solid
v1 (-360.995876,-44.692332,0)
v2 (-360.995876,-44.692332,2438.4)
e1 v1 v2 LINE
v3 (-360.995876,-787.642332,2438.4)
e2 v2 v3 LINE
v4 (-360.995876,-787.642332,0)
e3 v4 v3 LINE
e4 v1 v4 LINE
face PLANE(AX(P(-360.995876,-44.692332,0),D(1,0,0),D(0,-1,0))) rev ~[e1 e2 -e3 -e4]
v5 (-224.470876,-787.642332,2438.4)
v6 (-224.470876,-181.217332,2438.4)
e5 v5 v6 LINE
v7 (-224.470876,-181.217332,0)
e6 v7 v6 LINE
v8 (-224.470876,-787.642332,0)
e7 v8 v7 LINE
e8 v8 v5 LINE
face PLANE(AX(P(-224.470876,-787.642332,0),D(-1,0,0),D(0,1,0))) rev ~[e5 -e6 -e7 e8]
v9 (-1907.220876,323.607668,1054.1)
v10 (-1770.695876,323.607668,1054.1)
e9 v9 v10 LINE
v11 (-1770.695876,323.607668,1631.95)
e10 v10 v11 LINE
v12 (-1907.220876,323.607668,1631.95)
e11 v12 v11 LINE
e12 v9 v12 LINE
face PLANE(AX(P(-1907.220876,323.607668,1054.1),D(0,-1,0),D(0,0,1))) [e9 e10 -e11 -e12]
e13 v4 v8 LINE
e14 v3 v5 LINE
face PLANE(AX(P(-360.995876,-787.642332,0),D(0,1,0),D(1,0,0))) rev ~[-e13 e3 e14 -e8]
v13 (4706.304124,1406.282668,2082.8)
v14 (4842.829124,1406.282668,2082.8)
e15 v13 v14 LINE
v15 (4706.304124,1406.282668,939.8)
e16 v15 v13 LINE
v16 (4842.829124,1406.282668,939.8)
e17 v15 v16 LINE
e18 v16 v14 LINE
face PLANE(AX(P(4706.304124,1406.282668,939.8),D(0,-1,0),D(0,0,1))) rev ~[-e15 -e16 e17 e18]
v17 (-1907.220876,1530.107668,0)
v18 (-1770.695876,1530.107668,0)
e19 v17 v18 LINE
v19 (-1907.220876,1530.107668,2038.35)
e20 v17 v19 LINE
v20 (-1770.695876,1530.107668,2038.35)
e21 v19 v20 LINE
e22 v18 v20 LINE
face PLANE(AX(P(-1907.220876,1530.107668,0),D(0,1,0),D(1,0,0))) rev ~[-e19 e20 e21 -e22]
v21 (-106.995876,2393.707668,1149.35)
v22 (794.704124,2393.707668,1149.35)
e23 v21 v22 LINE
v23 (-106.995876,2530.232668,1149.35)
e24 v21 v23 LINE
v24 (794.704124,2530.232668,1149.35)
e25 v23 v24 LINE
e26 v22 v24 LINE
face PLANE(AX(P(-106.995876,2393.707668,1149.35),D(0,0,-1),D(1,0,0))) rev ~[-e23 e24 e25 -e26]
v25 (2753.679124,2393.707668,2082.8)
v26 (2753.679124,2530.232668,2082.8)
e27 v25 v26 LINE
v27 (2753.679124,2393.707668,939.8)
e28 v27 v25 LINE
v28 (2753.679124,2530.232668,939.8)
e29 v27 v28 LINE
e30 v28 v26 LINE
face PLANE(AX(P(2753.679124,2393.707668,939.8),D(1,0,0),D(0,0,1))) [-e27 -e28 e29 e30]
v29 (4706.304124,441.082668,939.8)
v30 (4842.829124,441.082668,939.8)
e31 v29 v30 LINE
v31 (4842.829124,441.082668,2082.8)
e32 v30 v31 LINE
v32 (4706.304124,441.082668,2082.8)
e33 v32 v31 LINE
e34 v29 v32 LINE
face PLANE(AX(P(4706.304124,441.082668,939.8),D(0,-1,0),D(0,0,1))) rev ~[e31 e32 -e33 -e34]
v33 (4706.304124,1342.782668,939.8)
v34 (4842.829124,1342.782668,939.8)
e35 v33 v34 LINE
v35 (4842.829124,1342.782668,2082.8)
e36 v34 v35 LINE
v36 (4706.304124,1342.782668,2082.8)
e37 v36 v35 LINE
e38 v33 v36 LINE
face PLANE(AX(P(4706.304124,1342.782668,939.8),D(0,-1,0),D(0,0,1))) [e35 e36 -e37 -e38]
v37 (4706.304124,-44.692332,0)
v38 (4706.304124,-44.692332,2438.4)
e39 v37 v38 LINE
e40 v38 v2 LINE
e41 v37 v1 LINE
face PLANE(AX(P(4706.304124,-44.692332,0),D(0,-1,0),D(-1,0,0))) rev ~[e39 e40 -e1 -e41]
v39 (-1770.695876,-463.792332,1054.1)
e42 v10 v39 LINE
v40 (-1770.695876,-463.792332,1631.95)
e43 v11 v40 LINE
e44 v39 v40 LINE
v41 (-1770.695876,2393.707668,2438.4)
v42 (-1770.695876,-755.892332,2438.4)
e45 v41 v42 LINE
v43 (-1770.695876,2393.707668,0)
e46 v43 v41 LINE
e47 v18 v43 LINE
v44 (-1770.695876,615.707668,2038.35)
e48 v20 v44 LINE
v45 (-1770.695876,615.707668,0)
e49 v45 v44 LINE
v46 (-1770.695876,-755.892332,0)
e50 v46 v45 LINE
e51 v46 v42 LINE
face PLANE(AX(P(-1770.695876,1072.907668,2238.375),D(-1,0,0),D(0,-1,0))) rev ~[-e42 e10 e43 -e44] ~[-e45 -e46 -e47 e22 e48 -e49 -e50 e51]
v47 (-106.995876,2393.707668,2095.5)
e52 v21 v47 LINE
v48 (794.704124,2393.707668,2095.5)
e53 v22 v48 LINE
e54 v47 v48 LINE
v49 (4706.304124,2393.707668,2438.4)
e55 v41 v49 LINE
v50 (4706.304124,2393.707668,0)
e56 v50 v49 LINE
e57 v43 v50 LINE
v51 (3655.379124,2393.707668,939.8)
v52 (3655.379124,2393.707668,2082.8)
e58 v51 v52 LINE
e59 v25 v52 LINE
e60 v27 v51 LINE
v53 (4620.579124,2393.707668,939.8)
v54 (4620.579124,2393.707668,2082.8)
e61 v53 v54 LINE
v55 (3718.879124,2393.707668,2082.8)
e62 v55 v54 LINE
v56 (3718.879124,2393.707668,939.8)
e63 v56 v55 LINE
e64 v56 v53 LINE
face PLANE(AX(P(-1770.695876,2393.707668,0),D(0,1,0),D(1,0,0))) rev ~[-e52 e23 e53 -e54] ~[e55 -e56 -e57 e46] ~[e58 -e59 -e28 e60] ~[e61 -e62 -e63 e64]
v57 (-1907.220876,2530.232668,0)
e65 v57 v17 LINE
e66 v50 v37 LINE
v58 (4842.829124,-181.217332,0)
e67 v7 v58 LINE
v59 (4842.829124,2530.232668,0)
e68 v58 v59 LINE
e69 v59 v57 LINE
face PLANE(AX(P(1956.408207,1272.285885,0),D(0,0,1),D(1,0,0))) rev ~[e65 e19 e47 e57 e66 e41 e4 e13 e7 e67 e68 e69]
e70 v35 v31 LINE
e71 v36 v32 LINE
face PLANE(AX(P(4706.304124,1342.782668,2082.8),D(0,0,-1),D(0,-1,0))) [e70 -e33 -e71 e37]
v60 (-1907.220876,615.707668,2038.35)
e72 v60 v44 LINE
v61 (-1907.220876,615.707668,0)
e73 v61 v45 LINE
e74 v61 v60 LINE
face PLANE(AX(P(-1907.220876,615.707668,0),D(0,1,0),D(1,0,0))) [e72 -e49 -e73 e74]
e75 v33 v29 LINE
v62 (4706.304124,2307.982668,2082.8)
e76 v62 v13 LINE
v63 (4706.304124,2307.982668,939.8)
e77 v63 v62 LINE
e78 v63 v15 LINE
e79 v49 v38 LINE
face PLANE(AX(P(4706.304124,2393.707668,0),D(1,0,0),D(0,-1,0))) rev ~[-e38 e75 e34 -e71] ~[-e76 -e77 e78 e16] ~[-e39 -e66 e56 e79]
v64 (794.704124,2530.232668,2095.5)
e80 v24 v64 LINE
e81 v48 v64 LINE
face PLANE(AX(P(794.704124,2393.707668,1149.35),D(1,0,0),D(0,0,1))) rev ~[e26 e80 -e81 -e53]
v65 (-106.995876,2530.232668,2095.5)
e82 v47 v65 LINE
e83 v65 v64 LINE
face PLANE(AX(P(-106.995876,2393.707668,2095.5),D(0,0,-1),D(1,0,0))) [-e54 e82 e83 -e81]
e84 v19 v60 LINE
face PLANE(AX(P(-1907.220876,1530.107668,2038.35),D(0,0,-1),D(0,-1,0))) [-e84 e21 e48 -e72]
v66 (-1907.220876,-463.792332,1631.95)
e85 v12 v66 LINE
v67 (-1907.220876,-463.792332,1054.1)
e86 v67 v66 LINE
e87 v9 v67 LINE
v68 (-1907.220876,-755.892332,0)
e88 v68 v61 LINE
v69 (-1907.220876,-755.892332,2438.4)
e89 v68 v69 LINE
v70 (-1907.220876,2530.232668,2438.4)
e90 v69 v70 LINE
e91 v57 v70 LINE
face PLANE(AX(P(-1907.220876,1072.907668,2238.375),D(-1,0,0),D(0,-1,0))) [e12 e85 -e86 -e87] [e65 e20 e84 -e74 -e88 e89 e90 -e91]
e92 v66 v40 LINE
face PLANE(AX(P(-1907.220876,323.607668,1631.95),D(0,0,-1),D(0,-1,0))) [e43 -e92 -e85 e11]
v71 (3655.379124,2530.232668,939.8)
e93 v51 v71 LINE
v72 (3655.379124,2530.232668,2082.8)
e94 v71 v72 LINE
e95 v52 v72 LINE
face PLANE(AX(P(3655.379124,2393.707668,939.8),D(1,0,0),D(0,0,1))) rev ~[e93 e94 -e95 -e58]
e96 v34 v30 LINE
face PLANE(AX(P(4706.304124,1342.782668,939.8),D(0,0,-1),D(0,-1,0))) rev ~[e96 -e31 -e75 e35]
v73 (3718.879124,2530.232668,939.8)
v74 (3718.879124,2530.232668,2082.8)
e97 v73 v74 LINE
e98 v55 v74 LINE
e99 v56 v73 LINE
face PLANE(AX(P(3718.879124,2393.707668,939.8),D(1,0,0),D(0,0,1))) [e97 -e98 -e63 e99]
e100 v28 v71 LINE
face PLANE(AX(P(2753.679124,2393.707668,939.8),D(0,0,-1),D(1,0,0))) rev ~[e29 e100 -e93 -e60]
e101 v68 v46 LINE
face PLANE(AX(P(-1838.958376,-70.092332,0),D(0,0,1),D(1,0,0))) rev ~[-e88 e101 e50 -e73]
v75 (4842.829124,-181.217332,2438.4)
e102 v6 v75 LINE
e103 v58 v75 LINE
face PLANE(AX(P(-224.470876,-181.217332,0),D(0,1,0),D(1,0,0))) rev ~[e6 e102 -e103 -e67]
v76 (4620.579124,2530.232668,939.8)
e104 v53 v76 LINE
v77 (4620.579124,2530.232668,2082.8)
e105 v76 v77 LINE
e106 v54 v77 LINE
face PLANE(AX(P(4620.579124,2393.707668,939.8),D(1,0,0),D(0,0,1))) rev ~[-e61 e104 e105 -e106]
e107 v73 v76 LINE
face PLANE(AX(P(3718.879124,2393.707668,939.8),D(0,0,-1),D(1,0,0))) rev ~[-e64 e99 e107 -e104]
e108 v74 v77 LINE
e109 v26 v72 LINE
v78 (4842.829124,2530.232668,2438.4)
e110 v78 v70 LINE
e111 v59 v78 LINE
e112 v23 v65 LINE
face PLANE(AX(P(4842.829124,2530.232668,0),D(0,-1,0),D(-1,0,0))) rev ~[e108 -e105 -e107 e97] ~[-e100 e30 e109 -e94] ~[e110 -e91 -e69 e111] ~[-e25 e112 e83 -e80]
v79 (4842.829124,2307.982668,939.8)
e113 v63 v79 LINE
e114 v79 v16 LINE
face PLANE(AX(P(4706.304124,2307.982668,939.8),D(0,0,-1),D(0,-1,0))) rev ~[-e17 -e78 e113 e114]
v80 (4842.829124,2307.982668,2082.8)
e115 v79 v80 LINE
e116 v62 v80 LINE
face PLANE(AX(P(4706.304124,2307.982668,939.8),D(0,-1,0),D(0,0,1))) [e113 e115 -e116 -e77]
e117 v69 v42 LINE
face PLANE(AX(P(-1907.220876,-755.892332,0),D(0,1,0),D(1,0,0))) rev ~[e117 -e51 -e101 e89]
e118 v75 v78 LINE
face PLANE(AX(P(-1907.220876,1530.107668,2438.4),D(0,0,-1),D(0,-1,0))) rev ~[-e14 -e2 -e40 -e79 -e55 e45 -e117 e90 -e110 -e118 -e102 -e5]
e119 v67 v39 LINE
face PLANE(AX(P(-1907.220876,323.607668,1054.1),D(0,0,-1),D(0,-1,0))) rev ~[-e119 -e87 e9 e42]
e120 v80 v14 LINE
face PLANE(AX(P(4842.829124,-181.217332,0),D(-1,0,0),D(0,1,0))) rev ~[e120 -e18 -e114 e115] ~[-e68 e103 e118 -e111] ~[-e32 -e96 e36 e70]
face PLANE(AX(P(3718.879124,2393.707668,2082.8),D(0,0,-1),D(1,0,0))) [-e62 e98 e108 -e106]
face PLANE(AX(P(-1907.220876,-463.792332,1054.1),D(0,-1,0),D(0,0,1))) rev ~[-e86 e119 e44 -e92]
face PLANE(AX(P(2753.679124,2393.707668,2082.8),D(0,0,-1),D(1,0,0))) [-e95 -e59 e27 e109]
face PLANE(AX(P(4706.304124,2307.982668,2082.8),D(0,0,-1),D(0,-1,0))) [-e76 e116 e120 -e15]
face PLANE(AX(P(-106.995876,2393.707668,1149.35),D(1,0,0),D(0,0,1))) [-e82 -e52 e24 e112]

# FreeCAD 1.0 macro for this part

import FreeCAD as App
import Part
import Sketcher
Q = App.Units.Quantity

doc = App.newDocument("Part")
body = doc.addObject("PartDesign::Body", "Body")
body.AllowCompound = True

sketch1 = doc.addObject("Sketcher::SketchObject", "Sketch")
body.addObject(sketch1)
sketch1.AttachmentSupport = (doc.XY_Plane, [""])
sketch1.MapMode = "FlatFace"
sketch1.addGeometry([
    Part.LineSegment(App.Vector(-1770.695876, 1530.107668, 0), App.Vector(-1770.695876, 2393.707668, 0)),
    Part.LineSegment(App.Vector(-1770.695876, 2393.707668, 0), App.Vector(4706.304124, 2393.707668, 0)),
    Part.LineSegment(App.Vector(4706.304124, 2393.707668, 0), App.Vector(4706.304124, -44.692332, 0)),
    Part.LineSegment(App.Vector(4706.304124, -44.692332, 0), App.Vector(-360.995876, -44.692332, 0)),
    Part.LineSegment(App.Vector(-360.995876, -44.692332, 0), App.Vector(-360.995876, -787.642332, 0)),
    Part.LineSegment(App.Vector(-360.995876, -787.642332, 0), App.Vector(-224.470876, -787.642332, 0)),
    Part.LineSegment(App.Vector(-224.470876, -787.642332, 0), App.Vector(-224.470876, -181.217332, 0)),
    Part.LineSegment(App.Vector(-224.470876, -181.217332, 0), App.Vector(4842.829124, -181.217332, 0)),
    Part.LineSegment(App.Vector(4842.829124, -181.217332, 0), App.Vector(4842.829124, 2530.232668, 0)),
    Part.LineSegment(App.Vector(4842.829124, 2530.232668, 0), App.Vector(-1907.220876, 2530.232668, 0)),
    Part.LineSegment(App.Vector(-1907.220876, 2530.232668, 0), App.Vector(-1907.220876, 1530.107668, 0)),
    Part.LineSegment(App.Vector(-1907.220876, 1530.107668, 0), App.Vector(-1770.695876, 1530.107668, 0)),
    Part.LineSegment(App.Vector(-1907.220876, 615.707668, 0), App.Vector(-1907.220876, -755.892332, 0)),
    Part.LineSegment(App.Vector(-1907.220876, -755.892332, 0), App.Vector(-1770.695876, -755.892332, 0)),
    Part.LineSegment(App.Vector(-1770.695876, -755.892332, 0), App.Vector(-1770.695876, 615.707668, 0)),
    Part.LineSegment(App.Vector(-1770.695876, 615.707668, 0), App.Vector(-1907.220876, 615.707668, 0)),
], False)
sketch1.addConstraint([
    Sketcher.Constraint("Coincident", 0, 2, 1, 1),
    Sketcher.Constraint("Coincident", 1, 2, 2, 1),
    Sketcher.Constraint("Coincident", 2, 2, 3, 1),
    Sketcher.Constraint("Coincident", 3, 2, 4, 1),
    Sketcher.Constraint("Coincident", 4, 2, 5, 1),
    Sketcher.Constraint("Coincident", 5, 2, 6, 1),
    Sketcher.Constraint("Coincident", 6, 2, 7, 1),
    Sketcher.Constraint("Coincident", 7, 2, 8, 1),
    Sketcher.Constraint("Coincident", 8, 2, 9, 1),
    Sketcher.Constraint("Coincident", 9, 2, 10, 1),
    Sketcher.Constraint("Coincident", 10, 2, 11, 1),
    Sketcher.Constraint("Coincident", 11, 2, 0, 1),
    Sketcher.Constraint("Coincident", 12, 2, 13, 1),
    Sketcher.Constraint("Coincident", 13, 2, 14, 1),
    Sketcher.Constraint("Coincident", 14, 2, 15, 1),
    Sketcher.Constraint("Coincident", 15, 2, 12, 1),
    Sketcher.Constraint("Vertical", 0),
    Sketcher.Constraint("Horizontal", 1),
    Sketcher.Constraint("Vertical", 2),
    Sketcher.Constraint("Horizontal", 3),
    Sketcher.Constraint("Vertical", 4),
    Sketcher.Constraint("Horizontal", 5),
    Sketcher.Constraint("Vertical", 6),
    Sketcher.Constraint("Horizontal", 7),
    Sketcher.Constraint("Vertical", 8),
    Sketcher.Constraint("Horizontal", 9),
    Sketcher.Constraint("Vertical", 10),
    Sketcher.Constraint("Horizontal", 11),
    Sketcher.Constraint("Vertical", 12),
    Sketcher.Constraint("Horizontal", 13),
    Sketcher.Constraint("Vertical", 14),
    Sketcher.Constraint("Horizontal", 15),
    Sketcher.Constraint("Vertical", 10, 2, 12, 2),
    Sketcher.Constraint("Vertical", 11, 2, 13, 2),
    Sketcher.Constraint("Equal", 3, 7),
    Sketcher.Constraint("Equal", 5, 11),
    Sketcher.Constraint("DistanceX", 1, 1, 1, 2, Q("255 in")),
    Sketcher.Constraint("DistanceY", 0, 1, 0, 2, Q("34 in")),
    Sketcher.Constraint("DistanceY", 2, 2, 2, 1, Q("96 in")),
    Sketcher.Constraint("DistanceY", 12, 2, 12, 1, Q("54 in")),
    Sketcher.Constraint("DistanceX", 3, 2, 3, 1, Q("199.5 in")),
    Sketcher.Constraint("DistanceY", 12, 2, 3, 2, Q("28 in")),
    Sketcher.Constraint("DistanceX", 9, 2, 9, 1, Q("265.75 in")),
    Sketcher.Constraint("DistanceY", 4, 2, 4, 1, Q("29.25 in")),
    Sketcher.Constraint("DistanceY", 8, 1, 8, 2, Q("106.75 in")),
    Sketcher.Constraint("DistanceY", 6, 1, 6, 2, Q("23.875 in")),
    Sketcher.Constraint("DistanceY", -1, 1, 0, 2, 2393.707668),
    Sketcher.Constraint("DistanceX", 0, 2, -1, 1, 1770.695876),
])
pad1 = doc.addObject("PartDesign::Pad", "Pad")
body.addObject(pad1)
pad1.Profile = sketch1
pad1.Length = Q("96 in")

sketch2 = doc.addObject("Sketcher::SketchObject", "Sketch001")
body.addObject(sketch2)
sketch2.AttachmentSupport = (doc.XZ_Plane, [""])
sketch2.MapMode = "FlatFace"
sketch2.AttachmentOffset = App.Placement(App.Vector(0, 0, -2393.707668), App.Rotation())
sketch2.addGeometry([
    Part.LineSegment(App.Vector(-106.995876, 2095.5, 0), App.Vector(-106.995876, 1149.35, 0)),
    Part.LineSegment(App.Vector(-106.995876, 1149.35, 0), App.Vector(794.704124, 1149.35, 0)),
    Part.LineSegment(App.Vector(794.704124, 1149.35, 0), App.Vector(794.704124, 2095.5, 0)),
    Part.LineSegment(App.Vector(794.704124, 2095.5, 0), App.Vector(-106.995876, 2095.5, 0)),
    Part.LineSegment(App.Vector(2753.679124, 2082.8, 0), App.Vector(2753.679124, 939.8, 0)),
    Part.LineSegment(App.Vector(2753.679124, 939.8, 0), App.Vector(3655.379124, 939.8, 0)),
    Part.LineSegment(App.Vector(3655.379124, 939.8, 0), App.Vector(3655.379124, 2082.8, 0)),
    Part.LineSegment(App.Vector(3655.379124, 2082.8, 0), App.Vector(2753.679124, 2082.8, 0)),
    Part.LineSegment(App.Vector(3718.879124, 2082.8, 0), App.Vector(3718.879124, 939.8, 0)),
    Part.LineSegment(App.Vector(3718.879124, 939.8, 0), App.Vector(4620.579124, 939.8, 0)),
    Part.LineSegment(App.Vector(4620.579124, 939.8, 0), App.Vector(4620.579124, 2082.8, 0)),
    Part.LineSegment(App.Vector(4620.579124, 2082.8, 0), App.Vector(3718.879124, 2082.8, 0)),
], False)
sketch2.addConstraint([
    Sketcher.Constraint("Coincident", 0, 2, 1, 1),
    Sketcher.Constraint("Coincident", 1, 2, 2, 1),
    Sketcher.Constraint("Coincident", 2, 2, 3, 1),
    Sketcher.Constraint("Coincident", 3, 2, 0, 1),
    Sketcher.Constraint("Coincident", 4, 2, 5, 1),
    Sketcher.Constraint("Coincident", 5, 2, 6, 1),
    Sketcher.Constraint("Coincident", 6, 2, 7, 1),
    Sketcher.Constraint("Coincident", 7, 2, 4, 1),
    Sketcher.Constraint("Coincident", 8, 2, 9, 1),
    Sketcher.Constraint("Coincident", 9, 2, 10, 1),
    Sketcher.Constraint("Coincident", 10, 2, 11, 1),
    Sketcher.Constraint("Coincident", 11, 2, 8, 1),
    Sketcher.Constraint("Vertical", 0),
    Sketcher.Constraint("Horizontal", 1),
    Sketcher.Constraint("Vertical", 2),
    Sketcher.Constraint("Horizontal", 3),
    Sketcher.Constraint("Vertical", 4),
    Sketcher.Constraint("Horizontal", 5),
    Sketcher.Constraint("Vertical", 6),
    Sketcher.Constraint("Horizontal", 7),
    Sketcher.Constraint("Vertical", 8),
    Sketcher.Constraint("Horizontal", 9),
    Sketcher.Constraint("Vertical", 10),
    Sketcher.Constraint("Horizontal", 11),
    Sketcher.Constraint("Horizontal", 5, 2, 8, 2),
    Sketcher.Constraint("Horizontal", 7, 2, 10, 2),
    Sketcher.Constraint("Equal", 3, 5),
    Sketcher.Constraint("Equal", 7, 9),
    Sketcher.Constraint("DistanceY", 4, 2, 4, 1, Q("45 in")),
    Sketcher.Constraint("DistanceX", 1, 1, 1, 2, Q("35.5 in")),
    Sketcher.Constraint("DistanceY", -1, 1, 4, 2, Q("37 in")),
    Sketcher.Constraint("DistanceX", 4, 2, 8, 2, Q("38 in")),
    Sketcher.Constraint("DistanceY", 0, 2, 0, 1, Q("37.25 in")),
    Sketcher.Constraint("DistanceY", -1, 1, 2, 2, Q("82.5 in")),
    Sketcher.Constraint("DistanceX", 1, 2, 4, 2, Q("77.125 in")),
    Sketcher.Constraint("DistanceX", 0, 2, -1, 1, 106.995876),
])
pocket1 = doc.addObject("PartDesign::Pocket", "Pocket")
body.addObject(pocket1)
pocket1.Profile = sketch2
pocket1.Type = "ThroughAll"

sketch3 = doc.addObject("Sketcher::SketchObject", "Sketch002")
body.addObject(sketch3)
sketch3.AttachmentSupport = (doc.YZ_Plane, [""])
sketch3.MapMode = "FlatFace"
sketch3.AttachmentOffset = App.Placement(App.Vector(0, 0, 4706.304124), App.Rotation())
sketch3.addGeometry([
    Part.LineSegment(App.Vector(2307.982668, 2082.8, 0), App.Vector(2307.982668, 939.8, 0)),
    Part.LineSegment(App.Vector(2307.982668, 939.8, 0), App.Vector(1406.282668, 939.8, 0)),
    Part.LineSegment(App.Vector(1406.282668, 939.8, 0), App.Vector(1406.282668, 2082.8, 0)),
    Part.LineSegment(App.Vector(1406.282668, 2082.8, 0), App.Vector(2307.982668, 2082.8, 0)),
    Part.LineSegment(App.Vector(1342.782668, 2082.8, 0), App.Vector(1342.782668, 939.8, 0)),
    Part.LineSegment(App.Vector(1342.782668, 939.8, 0), App.Vector(441.082668, 939.8, 0)),
    Part.LineSegment(App.Vector(441.082668, 939.8, 0), App.Vector(441.082668, 2082.8, 0)),
    Part.LineSegment(App.Vector(441.082668, 2082.8, 0), App.Vector(1342.782668, 2082.8, 0)),
], False)
sketch3.addConstraint([
    Sketcher.Constraint("Coincident", 0, 2, 1, 1),
    Sketcher.Constraint("Coincident", 1, 2, 2, 1),
    Sketcher.Constraint("Coincident", 2, 2, 3, 1),
    Sketcher.Constraint("Coincident", 3, 2, 0, 1),
    Sketcher.Constraint("Coincident", 4, 2, 5, 1),
    Sketcher.Constraint("Coincident", 5, 2, 6, 1),
    Sketcher.Constraint("Coincident", 6, 2, 7, 1),
    Sketcher.Constraint("Coincident", 7, 2, 4, 1),
    Sketcher.Constraint("Vertical", 0),
    Sketcher.Constraint("Horizontal", 1),
    Sketcher.Constraint("Vertical", 2),
    Sketcher.Constraint("Horizontal", 3),
    Sketcher.Constraint("Vertical", 4),
    Sketcher.Constraint("Horizontal", 5),
    Sketcher.Constraint("Vertical", 6),
    Sketcher.Constraint("Horizontal", 7),
    Sketcher.Constraint("Horizontal", 1, 2, 4, 2),
    Sketcher.Constraint("Horizontal", 3, 2, 6, 2),
    Sketcher.Constraint("Equal", 3, 5),
    Sketcher.Constraint("DistanceY", 0, 2, 0, 1, Q("45 in")),
    Sketcher.Constraint("DistanceX", 1, 2, 1, 1, Q("35.5 in")),
    Sketcher.Constraint("DistanceY", -1, 1, 0, 2, Q("37 in")),
    Sketcher.Constraint("DistanceX", 4, 2, 0, 2, Q("38 in")),
    Sketcher.Constraint("DistanceX", -1, 1, 0, 2, 2307.982668),
])
pocket2 = doc.addObject("PartDesign::Pocket", "Pocket001")
body.addObject(pocket2)
pocket2.Profile = sketch3
pocket2.Type = "ThroughAll"
pocket2.Reversed = True

sketch4 = doc.addObject("Sketcher::SketchObject", "Sketch003")
body.addObject(sketch4)
sketch4.AttachmentSupport = (doc.YZ_Plane, [""])
sketch4.MapMode = "FlatFace"
sketch4.AttachmentOffset = App.Placement(App.Vector(0, 0, -1907.220876), App.Rotation())
sketch4.addGeometry([
    Part.LineSegment(App.Vector(1530.107668, 2438.4, 0), App.Vector(1530.107668, 2038.35, 0)),
    Part.LineSegment(App.Vector(1530.107668, 2038.35, 0), App.Vector(615.707668, 2038.35, 0)),
    Part.LineSegment(App.Vector(615.707668, 2038.35, 0), App.Vector(615.707668, 2438.4, 0)),
    Part.LineSegment(App.Vector(615.707668, 2438.4, 0), App.Vector(1530.107668, 2438.4, 0)),
], False)
sketch4.addConstraint([
    Sketcher.Constraint("Coincident", 0, 2, 1, 1),
    Sketcher.Constraint("Coincident", 1, 2, 2, 1),
    Sketcher.Constraint("Coincident", 2, 2, 3, 1),
    Sketcher.Constraint("Coincident", 3, 2, 0, 1),
    Sketcher.Constraint("Vertical", 0),
    Sketcher.Constraint("Horizontal", 1),
    Sketcher.Constraint("Vertical", 2),
    Sketcher.Constraint("Horizontal", 3),
    Sketcher.Constraint("DistanceX", 1, 2, 1, 1, Q("36 in")),
    Sketcher.Constraint("DistanceY", -1, 1, 2, 2, Q("96 in")),
    Sketcher.Constraint("DistanceY", 0, 2, 0, 1, Q("15.75 in")),
    Sketcher.Constraint("DistanceX", -1, 1, 0, 2, 1530.107668),
])
pad2 = doc.addObject("PartDesign::Pad", "Pad001")
body.addObject(pad2)
pad2.Profile = sketch4
pad2.Length = Q("5.375 in")

sketch5 = doc.addObject("Sketcher::SketchObject", "Sketch004")
body.addObject(sketch5)
sketch5.AttachmentSupport = (doc.YZ_Plane, [""])
sketch5.MapMode = "FlatFace"
sketch5.AttachmentOffset = App.Placement(App.Vector(0, 0, -1907.220876), App.Rotation())
sketch5.addGeometry([
    Part.LineSegment(App.Vector(323.607668, 1631.95, 0), App.Vector(323.607668, 1054.1, 0)),
    Part.LineSegment(App.Vector(323.607668, 1054.1, 0), App.Vector(-463.792332, 1054.1, 0)),
    Part.LineSegment(App.Vector(-463.792332, 1054.1, 0), App.Vector(-463.792332, 1631.95, 0)),
    Part.LineSegment(App.Vector(-463.792332, 1631.95, 0), App.Vector(323.607668, 1631.95, 0)),
], False)
sketch5.addConstraint([
    Sketcher.Constraint("Coincident", 0, 2, 1, 1),
    Sketcher.Constraint("Coincident", 1, 2, 2, 1),
    Sketcher.Constraint("Coincident", 2, 2, 3, 1),
    Sketcher.Constraint("Coincident", 3, 2, 0, 1),
    Sketcher.Constraint("Vertical", 0),
    Sketcher.Constraint("Horizontal", 1),
    Sketcher.Constraint("Vertical", 2),
    Sketcher.Constraint("Horizontal", 3),
    Sketcher.Constraint("DistanceX", 1, 2, 1, 1, Q("31 in")),
    Sketcher.Constraint("DistanceY", 0, 2, 0, 1, Q("22.75 in")),
    Sketcher.Constraint("DistanceY", -1, 1, 0, 2, Q("41.5 in")),
    Sketcher.Constraint("DistanceX", -1, 1, 0, 2, 323.607668),
])
pocket3 = doc.addObject("PartDesign::Pocket", "Pocket002")
body.addObject(pocket3)
pocket3.Profile = sketch5
pocket3.Length = Q("5.375 in")
pocket3.Reversed = True

doc.recompute()
